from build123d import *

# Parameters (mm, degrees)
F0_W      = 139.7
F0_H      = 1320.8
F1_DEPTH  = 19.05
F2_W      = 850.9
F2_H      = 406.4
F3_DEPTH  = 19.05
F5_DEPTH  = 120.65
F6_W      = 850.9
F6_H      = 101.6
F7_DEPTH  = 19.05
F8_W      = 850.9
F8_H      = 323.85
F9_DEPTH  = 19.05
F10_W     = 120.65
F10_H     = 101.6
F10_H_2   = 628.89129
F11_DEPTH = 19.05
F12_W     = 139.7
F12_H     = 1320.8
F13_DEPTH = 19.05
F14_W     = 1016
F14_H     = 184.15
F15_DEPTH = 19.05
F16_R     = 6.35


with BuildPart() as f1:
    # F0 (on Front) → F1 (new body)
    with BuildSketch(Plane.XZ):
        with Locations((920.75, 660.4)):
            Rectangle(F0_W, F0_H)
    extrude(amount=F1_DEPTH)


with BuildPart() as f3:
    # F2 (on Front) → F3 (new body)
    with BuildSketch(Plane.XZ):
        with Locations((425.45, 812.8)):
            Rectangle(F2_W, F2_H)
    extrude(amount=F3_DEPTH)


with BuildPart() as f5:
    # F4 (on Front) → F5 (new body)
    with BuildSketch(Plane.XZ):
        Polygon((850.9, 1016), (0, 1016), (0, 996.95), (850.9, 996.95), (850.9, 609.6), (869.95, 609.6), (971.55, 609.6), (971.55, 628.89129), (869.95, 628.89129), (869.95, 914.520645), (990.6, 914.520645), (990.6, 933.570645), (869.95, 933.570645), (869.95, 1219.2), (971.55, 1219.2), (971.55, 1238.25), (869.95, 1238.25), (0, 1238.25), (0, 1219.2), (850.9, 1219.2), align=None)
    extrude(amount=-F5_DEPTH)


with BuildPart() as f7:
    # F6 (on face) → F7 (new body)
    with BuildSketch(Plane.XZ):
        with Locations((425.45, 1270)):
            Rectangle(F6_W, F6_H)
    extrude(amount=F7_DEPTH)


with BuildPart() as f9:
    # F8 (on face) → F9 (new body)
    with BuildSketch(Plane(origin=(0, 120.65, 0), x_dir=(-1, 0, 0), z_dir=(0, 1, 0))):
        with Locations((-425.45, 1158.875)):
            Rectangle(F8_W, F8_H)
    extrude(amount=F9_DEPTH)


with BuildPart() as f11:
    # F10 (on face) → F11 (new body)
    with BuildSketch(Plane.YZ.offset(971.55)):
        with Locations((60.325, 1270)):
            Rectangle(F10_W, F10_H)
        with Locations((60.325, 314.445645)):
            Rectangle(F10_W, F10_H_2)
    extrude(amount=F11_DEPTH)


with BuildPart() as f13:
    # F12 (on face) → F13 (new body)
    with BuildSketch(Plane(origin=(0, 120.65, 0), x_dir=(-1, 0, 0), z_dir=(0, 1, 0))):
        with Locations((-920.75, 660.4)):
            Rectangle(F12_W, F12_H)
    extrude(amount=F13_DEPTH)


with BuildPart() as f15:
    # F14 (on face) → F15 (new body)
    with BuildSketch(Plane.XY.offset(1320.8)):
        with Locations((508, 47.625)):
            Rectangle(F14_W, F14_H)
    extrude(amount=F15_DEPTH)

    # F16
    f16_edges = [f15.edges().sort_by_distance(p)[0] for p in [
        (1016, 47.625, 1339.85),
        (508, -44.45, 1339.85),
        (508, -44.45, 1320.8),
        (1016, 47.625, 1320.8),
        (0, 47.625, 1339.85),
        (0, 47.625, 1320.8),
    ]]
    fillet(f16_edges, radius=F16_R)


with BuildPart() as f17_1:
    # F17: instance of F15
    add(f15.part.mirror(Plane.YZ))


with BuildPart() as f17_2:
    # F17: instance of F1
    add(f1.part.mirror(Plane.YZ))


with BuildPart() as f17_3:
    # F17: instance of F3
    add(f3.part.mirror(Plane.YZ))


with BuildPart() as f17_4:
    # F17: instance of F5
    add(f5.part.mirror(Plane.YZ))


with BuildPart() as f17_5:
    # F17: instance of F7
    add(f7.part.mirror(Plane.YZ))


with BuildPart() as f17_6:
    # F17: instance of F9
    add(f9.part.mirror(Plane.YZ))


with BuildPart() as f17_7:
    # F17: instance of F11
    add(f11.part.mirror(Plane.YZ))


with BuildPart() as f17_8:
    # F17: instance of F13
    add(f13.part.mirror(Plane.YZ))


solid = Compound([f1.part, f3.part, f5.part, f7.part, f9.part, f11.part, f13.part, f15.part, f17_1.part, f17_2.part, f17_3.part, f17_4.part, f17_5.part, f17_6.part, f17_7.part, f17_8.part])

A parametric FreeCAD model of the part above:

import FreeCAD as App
import Part
import Sketcher
from FreeCAD import Vector
Q = App.Units.Quantity


def edges_at(feature, points):
    """Names of the edges that pass closest to the given points."""
    edges = feature.Shape.Edges
    near = lambda p: min(range(len(edges)), key=lambda i: edges[i].distToShape(Part.Vertex(*p))[0])
    return sorted({f"Edge{near(p) + 1}" for p in points})


def add_polygon(sketch, points):
    """Adds a closed chain of lines whose ends are joined by coincident constraints."""
    first, n = sketch.GeometryCount, len(points)
    for a, b in zip(points, points[1:] + points[:1]):
        sketch.addGeometry(Part.LineSegment(App.Vector(*a, 0), App.Vector(*b, 0)), False)
    for i in range(n):
        sketch.addConstraint(Sketcher.Constraint("Coincident", first + i, 2, first + (i + 1) % n, 1))

doc = App.newDocument("Part")
body = doc.addObject("PartDesign::Body", "Body")

# Sketch on XZ plane
sketch1 = body.newObject("Sketcher::SketchObject", "Sketch")
sketch1.AttachmentSupport = (doc.getObject("XZ_Plane"), [""])
sketch1.MapMode = "FlatFace"
add_polygon(sketch1, [(850.9, 1320.8), (850.9, 0), (990.6, 0), (990.6, 1320.8)])  # lines 0-3
sketch1.addConstraint([
    Sketcher.Constraint("Vertical", 0),
    Sketcher.Constraint("Horizontal", 1),
    Sketcher.Constraint("Vertical", 2),
    Sketcher.Constraint("Horizontal", 3),
    Sketcher.Constraint("PointOnObject", 0, 2, -1),
    Sketcher.Constraint("DistanceY", 0, 2, 0, 1, Q("52 in")),
    Sketcher.Constraint("DistanceX", 1, 1, 1, 2, Q("5.5 in")),
    Sketcher.Constraint("DistanceX", -1, 1, 1, 2, Q("39 in")),
])
pad1 = body.newObject("PartDesign::Pad", "Pad")
pad1.Profile = sketch1
pad1.Length = Q("0.75 in")
body2 = doc.addObject("PartDesign::Body", "Body001")

# Sketch on XZ plane
sketch2 = body2.newObject("Sketcher::SketchObject", "Sketch001")
sketch2.AttachmentSupport = (doc.getObject("XZ_Plane001"), [""])
sketch2.MapMode = "FlatFace"
add_polygon(sketch2, [(0, 1016), (0, 609.6), (850.9, 609.6), (850.9, 1016)])  # lines 0-3
sketch2.addConstraint([
    Sketcher.Constraint("Vertical", 0),
    Sketcher.Constraint("Horizontal", 1),
    Sketcher.Constraint("Vertical", 2),
    Sketcher.Constraint("Horizontal", 3),
    Sketcher.Constraint("PointOnObject", 0, 2, -2),
    Sketcher.Constraint("DistanceY", 0, 2, 0, 1, Q("16 in")),
    Sketcher.Constraint("DistanceX", 1, 1, 1, 2, Q("33.5 in")),
    Sketcher.Constraint("DistanceY", -1, 1, 0, 2, Q("24 in")),
])
pad2 = body2.newObject("PartDesign::Pad", "Pad001")
pad2.Profile = sketch2
pad2.Length = Q("0.75 in")
body3 = doc.addObject("PartDesign::Body", "Body002")

# Sketch on XZ plane
sketch3 = body3.newObject("Sketcher::SketchObject", "Sketch002")
sketch3.AttachmentSupport = (doc.getObject("XZ_Plane002"), [""])
sketch3.MapMode = "FlatFace"
add_polygon(sketch3, [(850.9, 1016), (0, 1016), (0, 996.95), (850.9, 996.95), (850.9, 609.6), (971.55, 609.6), (971.55, 628.89129), (869.95, 628.89129), (869.95, 914.520645), (990.6, 914.520645), (990.6, 933.570645), (869.95, 933.570645), (869.95, 1219.2), (971.55, 1219.2), (971.55, 1238.25), (0, 1238.25), (0, 1219.2), (850.9, 1219.2)])  # lines 0-17
sketch3.addConstraint([
    Sketcher.Constraint("Horizontal", 0),
    Sketcher.Constraint("Vertical", 1),
    Sketcher.Constraint("Horizontal", 2),
    Sketcher.Constraint("Vertical", 3),
    Sketcher.Constraint("Horizontal", 4),
    Sketcher.Constraint("Vertical", 5),
    Sketcher.Constraint("Horizontal", 6),
    Sketcher.Constraint("Vertical", 7),
    Sketcher.Constraint("Horizontal", 8),
    Sketcher.Constraint("Vertical", 9),
    Sketcher.Constraint("Horizontal", 10),
    Sketcher.Constraint("Vertical", 11),
    Sketcher.Constraint("Horizontal", 12),
    Sketcher.Constraint("Vertical", 13),
    Sketcher.Constraint("Horizontal", 14),
    Sketcher.Constraint("Vertical", 15),
    Sketcher.Constraint("Horizontal", 16),
    Sketcher.Constraint("Vertical", 17),
    Sketcher.Constraint("PointOnObject", 0, 2, -2),
    Sketcher.Constraint("PointOnObject", 14, 2, -2),
    Sketcher.Constraint("Horizontal", 12, 2, 15, 2),
    Sketcher.Constraint("Vertical", 7, 2, 10, 2),
    Sketcher.Constraint("Vertical", 5, 2, 12, 2),
    Sketcher.Constraint("Vertical", 3, 2, 16, 2),
    Sketcher.Constraint("Equal", 4, 8),
    Sketcher.Constraint("Equal", 1, 9),
    Sketcher.Constraint("Equal", 7, 11),
    Sketcher.Constraint("Equal", 9, 13),
    Sketcher.Constraint("DistanceX", 6, 2, 6, 1, Q("4 in")),
    Sketcher.Constraint("DistanceY", 17, 2, 17, 1, Q("8 in")),
    Sketcher.Constraint("DistanceX", 0, 2, 0, 1, Q("33.5 in")),
    Sketcher.Constraint("DistanceY", -1, 1, 0, 2, Q("40 in")),
    Sketcher.Constraint("DistanceY", -1, 1, 3, 2, Q("24 in")),
    Sketcher.Constraint("DistanceX", -1, 1, 8, 2, Q("39 in")),
    Sketcher.Constraint("DistanceY", 1, 2, 1, 1, Q("0.75 in")),
    Sketcher.Constraint("DistanceY", 5, 1, 5, 2, 19.29129),
])
pad3 = body3.newObject("PartDesign::Pad", "Pad002")
pad3.Profile = sketch3
pad3.Length = Q("4.75 in")
pad3.Reversed = True
body4 = doc.addObject("PartDesign::Body", "Body003")

# Sketch on XZ plane
sketch4 = body4.newObject("Sketcher::SketchObject", "Sketch003")
sketch4.AttachmentSupport = (doc.getObject("XZ_Plane003"), [""])
sketch4.MapMode = "FlatFace"
add_polygon(sketch4, [(0, 1320.8), (0, 1219.2), (850.9, 1219.2), (850.9, 1320.8)])  # lines 0-3
sketch4.addConstraint([
    Sketcher.Constraint("Vertical", 0),
    Sketcher.Constraint("Horizontal", 1),
    Sketcher.Constraint("Vertical", 2),
    Sketcher.Constraint("Horizontal", 3),
    Sketcher.Constraint("PointOnObject", 0, 2, -2),
    Sketcher.Constraint("DistanceY", 0, 2, 0, 1, Q("4 in")),
    Sketcher.Constraint("DistanceX", 1, 1, 1, 2, Q("33.5 in")),
    Sketcher.Constraint("DistanceY", -1, 1, 0, 2, Q("48 in")),
])
pad4 = body4.newObject("PartDesign::Pad", "Pad003")
pad4.Profile = sketch4
pad4.Length = Q("0.75 in")
body5 = doc.addObject("PartDesign::Body", "Body004")

# Sketch on XZ plane
sketch5 = body5.newObject("Sketcher::SketchObject", "Sketch004")
sketch5.AttachmentSupport = (doc.getObject("XZ_Plane004"), [""])
sketch5.MapMode = "FlatFace"
sketch5.AttachmentOffset = App.Placement(Vector(0, 0, -4.75 * 25.4), App.Rotation())
add_polygon(sketch5, [(850.9, 1320.8), (850.9, 996.95), (0, 996.95), (0, 1320.8)])  # lines 0-3
sketch5.addConstraint([
    Sketcher.Constraint("Vertical", 0),
    Sketcher.Constraint("Horizontal", 1),
    Sketcher.Constraint("Vertical", 2),
    Sketcher.Constraint("Horizontal", 3),
    Sketcher.Constraint("PointOnObject", 1, 2, -2),
    Sketcher.Constraint("DistanceX", 1, 2, 1, 1, Q("33.5 in")),
    Sketcher.Constraint("DistanceY", -1, 1, 2, 2, Q("52 in")),
    Sketcher.Constraint("DistanceY", 0, 2, 0, 1, Q("12.75 in")),
])
pad5 = body5.newObject("PartDesign::Pad", "Pad004")
pad5.Profile = sketch5
pad5.Length = Q("0.75 in")
pad5.Reversed = True
body6 = doc.addObject("PartDesign::Body", "Body005")
body6.AllowCompound = True

# Sketch on YZ plane
sketch6 = body6.newObject("Sketcher::SketchObject", "Sketch005")
sketch6.AttachmentSupport = (doc.getObject("YZ_Plane005"), [""])
sketch6.MapMode = "FlatFace"
sketch6.AttachmentOffset = App.Placement(Vector(0, 0, 38.25 * 25.4), App.Rotation())
add_polygon(sketch6, [(0, 1320.8), (0, 1219.2), (120.65, 1219.2), (120.65, 1320.8)])  # lines 0-3
add_polygon(sketch6, [(0, 628.89129), (0, 0), (120.65, 0), (120.65, 628.89129)])  # lines 4-7
sketch6.addConstraint([
    Sketcher.Constraint("Vertical", 0),
    Sketcher.Constraint("Horizontal", 1),
    Sketcher.Constraint("Vertical", 2),
    Sketcher.Constraint("Horizontal", 3),
    Sketcher.Constraint("Vertical", 4),
    Sketcher.Constraint("Horizontal", 5),
    Sketcher.Constraint("Vertical", 6),
    Sketcher.Constraint("Horizontal", 7),
    Sketcher.Constraint("Coincident", 4, 2, -1, 1),
    Sketcher.Constraint("PointOnObject", 0, 2, -2),
    Sketcher.Constraint("Vertical", 2, 2, 5, 2),
    Sketcher.Constraint("DistanceY", 0, 2, 0, 1, Q("4 in")),
    Sketcher.Constraint("DistanceY", -1, 1, 0, 2, Q("48 in")),
    Sketcher.Constraint("DistanceX", 1, 1, 1, 2, Q("4.75 in")),
    Sketcher.Constraint("DistanceY", 4, 2, 4, 1, 628.89129),
])
pad6 = body6.newObject("PartDesign::Pad", "Pad005")
pad6.Profile = sketch6
pad6.Length = Q("0.75 in")
body7 = doc.addObject("PartDesign::Body", "Body006")

# Sketch on XZ plane
sketch7 = body7.newObject("Sketcher::SketchObject", "Sketch006")
sketch7.AttachmentSupport = (doc.getObject("XZ_Plane006"), [""])
sketch7.MapMode = "FlatFace"
sketch7.AttachmentOffset = App.Placement(Vector(0, 0, -4.75 * 25.4), App.Rotation())
add_polygon(sketch7, [(990.6, 1320.8), (990.6, 0), (850.9, 0), (850.9, 1320.8)])  # lines 0-3
sketch7.addConstraint([
    Sketcher.Constraint("Vertical", 0),
    Sketcher.Constraint("Horizontal", 1),
    Sketcher.Constraint("Vertical", 2),
    Sketcher.Constraint("Horizontal", 3),
    Sketcher.Constraint("PointOnObject", 0, 2, -1),
    Sketcher.Constraint("DistanceY", 0, 2, 0, 1, Q("52 in")),
    Sketcher.Constraint("DistanceX", 1, 2, 1, 1, Q("5.5 in")),
    Sketcher.Constraint("DistanceX", -1, 1, 0, 2, Q("39 in")),
])
pad7 = body7.newObject("PartDesign::Pad", "Pad006")
pad7.Profile = sketch7
pad7.Length = Q("0.75 in")
pad7.Reversed = True
body8 = doc.addObject("PartDesign::Body", "Body007")

# Sketch on XY plane
sketch8 = body8.newObject("Sketcher::SketchObject", "Sketch007")
sketch8.AttachmentSupport = (doc.getObject("XY_Plane007"), [""])
sketch8.MapMode = "FlatFace"
sketch8.AttachmentOffset = App.Placement(Vector(0, 0, 52 * 25.4), App.Rotation())
add_polygon(sketch8, [(0, 139.7), (0, -44.45), (1016, -44.45), (1016, 139.7)])  # lines 0-3
sketch8.addConstraint([
    Sketcher.Constraint("Vertical", 0),
    Sketcher.Constraint("Horizontal", 1),
    Sketcher.Constraint("Vertical", 2),
    Sketcher.Constraint("Horizontal", 3),
    Sketcher.Constraint("PointOnObject", 0, 2, -2),
    Sketcher.Constraint("DistanceX", 1, 1, 1, 2, Q("40 in")),
    Sketcher.Constraint("DistanceY", 0, 2, 0, 1, Q("7.25 in")),
    Sketcher.Constraint("DistanceY", -1, 1, 2, 2, Q("5.5 in")),
])
pad8 = body8.newObject("PartDesign::Pad", "Pad007")
pad8.Profile = sketch8
pad8.Length = Q("0.75 in")
doc.recompute()

fillet = body8.newObject("PartDesign::Fillet", "Fillet")
fillet.Base = (pad8, edges_at(pad8, [
    (1016, 47.625, 1339.85),
    (508, -44.45, 1339.85),
    (508, -44.45, 1320.8),
    (1016, 47.625, 1320.8),
    (0, 47.625, 1339.85),
    (0, 47.625, 1320.8),
]))
fillet.Radius = Q("0.25 in")
body9 = doc.addObject("PartDesign::Body", "Body008")
doc.recompute()

mirroring = doc.addObject("Part::Mirroring", "Mirroring")
mirroring.Source = body8
mirroring.Base = Vector(0, 0, 0)
mirroring.Normal = Vector(1, 0, 0)
body9.BaseFeature = mirroring
doc.recompute()
body10 = doc.addObject("PartDesign::Body", "Body009")
doc.recompute()

mirroring2 = doc.addObject("Part::Mirroring", "Mirroring001")
mirroring2.Source = body
mirroring2.Base = Vector(0, 0, 0)
mirroring2.Normal = Vector(1, 0, 0)
body10.BaseFeature = mirroring2
doc.recompute()
body11 = doc.addObject("PartDesign::Body", "Body010")
doc.recompute()

mirroring3 = doc.addObject("Part::Mirroring", "Mirroring002")
mirroring3.Source = body2
mirroring3.Base = Vector(0, 0, 0)
mirroring3.Normal = Vector(1, 0, 0)
body11.BaseFeature = mirroring3
doc.recompute()
body12 = doc.addObject("PartDesign::Body", "Body011")
doc.recompute()

mirroring4 = doc.addObject("Part::Mirroring", "Mirroring003")
mirroring4.Source = body3
mirroring4.Base = Vector(0, 0, 0)
mirroring4.Normal = Vector(1, 0, 0)
body12.BaseFeature = mirroring4
doc.recompute()
body13 = doc.addObject("PartDesign::Body", "Body012")
doc.recompute()

mirroring5 = doc.addObject("Part::Mirroring", "Mirroring004")
mirroring5.Source = body4
mirroring5.Base = Vector(0, 0, 0)
mirroring5.Normal = Vector(1, 0, 0)
body13.BaseFeature = mirroring5
doc.recompute()
body14 = doc.addObject("PartDesign::Body", "Body013")
doc.recompute()

mirroring6 = doc.addObject("Part::Mirroring", "Mirroring005")
mirroring6.Source = body5
mirroring6.Base = Vector(0, 0, 0)
mirroring6.Normal = Vector(1, 0, 0)
body14.BaseFeature = mirroring6
doc.recompute()
body15 = doc.addObject("PartDesign::Body", "Body014")
body15.AllowCompound = True
doc.recompute()

mirroring7 = doc.addObject("Part::Mirroring", "Mirroring006")
mirroring7.Source = body6
mirroring7.Base = Vector(0, 0, 0)
mirroring7.Normal = Vector(1, 0, 0)
body15.BaseFeature = mirroring7
doc.recompute()
body16 = doc.addObject("PartDesign::Body", "Body015")
doc.recompute()

mirroring8 = doc.addObject("Part::Mirroring", "Mirroring007")
mirroring8.Source = body7
mirroring8.Base = Vector(0, 0, 0)
mirroring8.Normal = Vector(1, 0, 0)
body16.BaseFeature = mirroring8
doc.recompute()
mirroring.Visibility = False
mirroring2.Visibility = False
mirroring3.Visibility = False
mirroring4.Visibility = False
mirroring5.Visibility = False
mirroring6.Visibility = False
mirroring7.Visibility = False
mirroring8.Visibility = False

doc.recompute()
